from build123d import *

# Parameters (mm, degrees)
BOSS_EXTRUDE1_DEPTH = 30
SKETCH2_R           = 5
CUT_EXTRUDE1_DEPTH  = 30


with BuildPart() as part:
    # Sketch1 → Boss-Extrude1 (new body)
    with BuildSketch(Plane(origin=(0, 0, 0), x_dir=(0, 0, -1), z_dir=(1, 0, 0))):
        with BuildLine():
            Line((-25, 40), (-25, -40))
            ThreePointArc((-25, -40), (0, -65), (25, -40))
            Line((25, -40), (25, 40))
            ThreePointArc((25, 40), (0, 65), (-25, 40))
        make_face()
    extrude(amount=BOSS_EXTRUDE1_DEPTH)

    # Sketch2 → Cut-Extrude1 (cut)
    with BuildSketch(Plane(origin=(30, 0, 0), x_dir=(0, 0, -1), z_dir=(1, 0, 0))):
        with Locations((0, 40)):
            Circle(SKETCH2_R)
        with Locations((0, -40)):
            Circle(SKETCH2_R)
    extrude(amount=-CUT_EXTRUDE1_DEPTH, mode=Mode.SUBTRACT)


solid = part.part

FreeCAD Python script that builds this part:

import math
import FreeCAD as App
import Part
import Sketcher
from FreeCAD import Vector
Q = App.Units.Quantity

doc = App.newDocument("Part")
body = doc.addObject("PartDesign::Body", "Body")

# Sketch on YZ plane
sketch1 = body.newObject("Sketcher::SketchObject", "Sketch")
sketch1.AttachmentSupport = (doc.getObject("YZ_Plane"), [""])
sketch1.MapMode = "FlatFace"
sketch1.addGeometry(Part.LineSegment(Vector(40, 25, 0), Vector(-40, 25, 0)), False)
sketch1.addGeometry(Part.ArcOfCircle(Part.Circle(Vector(-40, 0, 0), Vector(0, 0, 1), 25), math.radians(90), math.radians(270)), False)
sketch1.addGeometry(Part.LineSegment(Vector(-40, -25, 0), Vector(40, -25, 0)), False)
sketch1.addGeometry(Part.ArcOfCircle(Part.Circle(Vector(40, 0, 0), Vector(0, 0, 1), 25), math.radians(-90), math.radians(90)), False)
sketch1.addConstraint(Sketcher.Constraint("Tangent", 0, 2, 1, 1))
sketch1.addConstraint(Sketcher.Constraint("Tangent", 1, 2, 2, 1))
sketch1.addConstraint(Sketcher.Constraint("Tangent", 2, 2, 3, 1))
sketch1.addConstraint(Sketcher.Constraint("Tangent", 3, 2, 0, 1))
sketch1.addConstraint(Sketcher.Constraint("Horizontal", 0))
sketch1.addConstraint(Sketcher.Constraint("Horizontal", 2))
sketch1.addConstraint(Sketcher.Constraint("Symmetric", 1, 3, 3, 3, -1, 1))
sketch1.addConstraint(Sketcher.Constraint("Radius", 1, Q("25 mm")))
sketch1.addConstraint(Sketcher.Constraint("DistanceX", 0, 2, 0, 1, Q("80 mm")))
pad1 = body.newObject("PartDesign::Pad", "Pad")
pad1.Profile = sketch1
pad1.Length = 30

# Sketch on YZ plane
sketch2 = body.newObject("Sketcher::SketchObject", "Sketch001")
sketch2.AttachmentSupport = (doc.getObject("YZ_Plane"), [""])
sketch2.MapMode = "FlatFace"
sketch2.AttachmentOffset = App.Placement(Vector(0, 0, 30), App.Rotation())
sketch2.addGeometry(Part.Circle(Vector(40, 0, 0), Vector(0, 0, 1), 5), False)
sketch2.addGeometry(Part.Circle(Vector(-40, 0, 0), Vector(0, 0, 1), 5), False)
sketch2.addConstraint(Sketcher.Constraint("Equal", 0, 1))
sketch2.addConstraint(Sketcher.Constraint("Symmetric", 0, 3, 1, 3, -1, 1))
sketch2.addConstraint(Sketcher.Constraint("PointOnObject", 0, 3, -1))
sketch2.addConstraint(Sketcher.Constraint("Diameter", 0, Q("10 mm")))
sketch2.addConstraint(Sketcher.Constraint("DistanceX", -1, 1, 0, 3, Q("40 mm")))
pocket1 = body.newObject("PartDesign::Pocket", "Pocket")
pocket1.Profile = sketch2
pocket1.Length = 30

doc.recompute()
